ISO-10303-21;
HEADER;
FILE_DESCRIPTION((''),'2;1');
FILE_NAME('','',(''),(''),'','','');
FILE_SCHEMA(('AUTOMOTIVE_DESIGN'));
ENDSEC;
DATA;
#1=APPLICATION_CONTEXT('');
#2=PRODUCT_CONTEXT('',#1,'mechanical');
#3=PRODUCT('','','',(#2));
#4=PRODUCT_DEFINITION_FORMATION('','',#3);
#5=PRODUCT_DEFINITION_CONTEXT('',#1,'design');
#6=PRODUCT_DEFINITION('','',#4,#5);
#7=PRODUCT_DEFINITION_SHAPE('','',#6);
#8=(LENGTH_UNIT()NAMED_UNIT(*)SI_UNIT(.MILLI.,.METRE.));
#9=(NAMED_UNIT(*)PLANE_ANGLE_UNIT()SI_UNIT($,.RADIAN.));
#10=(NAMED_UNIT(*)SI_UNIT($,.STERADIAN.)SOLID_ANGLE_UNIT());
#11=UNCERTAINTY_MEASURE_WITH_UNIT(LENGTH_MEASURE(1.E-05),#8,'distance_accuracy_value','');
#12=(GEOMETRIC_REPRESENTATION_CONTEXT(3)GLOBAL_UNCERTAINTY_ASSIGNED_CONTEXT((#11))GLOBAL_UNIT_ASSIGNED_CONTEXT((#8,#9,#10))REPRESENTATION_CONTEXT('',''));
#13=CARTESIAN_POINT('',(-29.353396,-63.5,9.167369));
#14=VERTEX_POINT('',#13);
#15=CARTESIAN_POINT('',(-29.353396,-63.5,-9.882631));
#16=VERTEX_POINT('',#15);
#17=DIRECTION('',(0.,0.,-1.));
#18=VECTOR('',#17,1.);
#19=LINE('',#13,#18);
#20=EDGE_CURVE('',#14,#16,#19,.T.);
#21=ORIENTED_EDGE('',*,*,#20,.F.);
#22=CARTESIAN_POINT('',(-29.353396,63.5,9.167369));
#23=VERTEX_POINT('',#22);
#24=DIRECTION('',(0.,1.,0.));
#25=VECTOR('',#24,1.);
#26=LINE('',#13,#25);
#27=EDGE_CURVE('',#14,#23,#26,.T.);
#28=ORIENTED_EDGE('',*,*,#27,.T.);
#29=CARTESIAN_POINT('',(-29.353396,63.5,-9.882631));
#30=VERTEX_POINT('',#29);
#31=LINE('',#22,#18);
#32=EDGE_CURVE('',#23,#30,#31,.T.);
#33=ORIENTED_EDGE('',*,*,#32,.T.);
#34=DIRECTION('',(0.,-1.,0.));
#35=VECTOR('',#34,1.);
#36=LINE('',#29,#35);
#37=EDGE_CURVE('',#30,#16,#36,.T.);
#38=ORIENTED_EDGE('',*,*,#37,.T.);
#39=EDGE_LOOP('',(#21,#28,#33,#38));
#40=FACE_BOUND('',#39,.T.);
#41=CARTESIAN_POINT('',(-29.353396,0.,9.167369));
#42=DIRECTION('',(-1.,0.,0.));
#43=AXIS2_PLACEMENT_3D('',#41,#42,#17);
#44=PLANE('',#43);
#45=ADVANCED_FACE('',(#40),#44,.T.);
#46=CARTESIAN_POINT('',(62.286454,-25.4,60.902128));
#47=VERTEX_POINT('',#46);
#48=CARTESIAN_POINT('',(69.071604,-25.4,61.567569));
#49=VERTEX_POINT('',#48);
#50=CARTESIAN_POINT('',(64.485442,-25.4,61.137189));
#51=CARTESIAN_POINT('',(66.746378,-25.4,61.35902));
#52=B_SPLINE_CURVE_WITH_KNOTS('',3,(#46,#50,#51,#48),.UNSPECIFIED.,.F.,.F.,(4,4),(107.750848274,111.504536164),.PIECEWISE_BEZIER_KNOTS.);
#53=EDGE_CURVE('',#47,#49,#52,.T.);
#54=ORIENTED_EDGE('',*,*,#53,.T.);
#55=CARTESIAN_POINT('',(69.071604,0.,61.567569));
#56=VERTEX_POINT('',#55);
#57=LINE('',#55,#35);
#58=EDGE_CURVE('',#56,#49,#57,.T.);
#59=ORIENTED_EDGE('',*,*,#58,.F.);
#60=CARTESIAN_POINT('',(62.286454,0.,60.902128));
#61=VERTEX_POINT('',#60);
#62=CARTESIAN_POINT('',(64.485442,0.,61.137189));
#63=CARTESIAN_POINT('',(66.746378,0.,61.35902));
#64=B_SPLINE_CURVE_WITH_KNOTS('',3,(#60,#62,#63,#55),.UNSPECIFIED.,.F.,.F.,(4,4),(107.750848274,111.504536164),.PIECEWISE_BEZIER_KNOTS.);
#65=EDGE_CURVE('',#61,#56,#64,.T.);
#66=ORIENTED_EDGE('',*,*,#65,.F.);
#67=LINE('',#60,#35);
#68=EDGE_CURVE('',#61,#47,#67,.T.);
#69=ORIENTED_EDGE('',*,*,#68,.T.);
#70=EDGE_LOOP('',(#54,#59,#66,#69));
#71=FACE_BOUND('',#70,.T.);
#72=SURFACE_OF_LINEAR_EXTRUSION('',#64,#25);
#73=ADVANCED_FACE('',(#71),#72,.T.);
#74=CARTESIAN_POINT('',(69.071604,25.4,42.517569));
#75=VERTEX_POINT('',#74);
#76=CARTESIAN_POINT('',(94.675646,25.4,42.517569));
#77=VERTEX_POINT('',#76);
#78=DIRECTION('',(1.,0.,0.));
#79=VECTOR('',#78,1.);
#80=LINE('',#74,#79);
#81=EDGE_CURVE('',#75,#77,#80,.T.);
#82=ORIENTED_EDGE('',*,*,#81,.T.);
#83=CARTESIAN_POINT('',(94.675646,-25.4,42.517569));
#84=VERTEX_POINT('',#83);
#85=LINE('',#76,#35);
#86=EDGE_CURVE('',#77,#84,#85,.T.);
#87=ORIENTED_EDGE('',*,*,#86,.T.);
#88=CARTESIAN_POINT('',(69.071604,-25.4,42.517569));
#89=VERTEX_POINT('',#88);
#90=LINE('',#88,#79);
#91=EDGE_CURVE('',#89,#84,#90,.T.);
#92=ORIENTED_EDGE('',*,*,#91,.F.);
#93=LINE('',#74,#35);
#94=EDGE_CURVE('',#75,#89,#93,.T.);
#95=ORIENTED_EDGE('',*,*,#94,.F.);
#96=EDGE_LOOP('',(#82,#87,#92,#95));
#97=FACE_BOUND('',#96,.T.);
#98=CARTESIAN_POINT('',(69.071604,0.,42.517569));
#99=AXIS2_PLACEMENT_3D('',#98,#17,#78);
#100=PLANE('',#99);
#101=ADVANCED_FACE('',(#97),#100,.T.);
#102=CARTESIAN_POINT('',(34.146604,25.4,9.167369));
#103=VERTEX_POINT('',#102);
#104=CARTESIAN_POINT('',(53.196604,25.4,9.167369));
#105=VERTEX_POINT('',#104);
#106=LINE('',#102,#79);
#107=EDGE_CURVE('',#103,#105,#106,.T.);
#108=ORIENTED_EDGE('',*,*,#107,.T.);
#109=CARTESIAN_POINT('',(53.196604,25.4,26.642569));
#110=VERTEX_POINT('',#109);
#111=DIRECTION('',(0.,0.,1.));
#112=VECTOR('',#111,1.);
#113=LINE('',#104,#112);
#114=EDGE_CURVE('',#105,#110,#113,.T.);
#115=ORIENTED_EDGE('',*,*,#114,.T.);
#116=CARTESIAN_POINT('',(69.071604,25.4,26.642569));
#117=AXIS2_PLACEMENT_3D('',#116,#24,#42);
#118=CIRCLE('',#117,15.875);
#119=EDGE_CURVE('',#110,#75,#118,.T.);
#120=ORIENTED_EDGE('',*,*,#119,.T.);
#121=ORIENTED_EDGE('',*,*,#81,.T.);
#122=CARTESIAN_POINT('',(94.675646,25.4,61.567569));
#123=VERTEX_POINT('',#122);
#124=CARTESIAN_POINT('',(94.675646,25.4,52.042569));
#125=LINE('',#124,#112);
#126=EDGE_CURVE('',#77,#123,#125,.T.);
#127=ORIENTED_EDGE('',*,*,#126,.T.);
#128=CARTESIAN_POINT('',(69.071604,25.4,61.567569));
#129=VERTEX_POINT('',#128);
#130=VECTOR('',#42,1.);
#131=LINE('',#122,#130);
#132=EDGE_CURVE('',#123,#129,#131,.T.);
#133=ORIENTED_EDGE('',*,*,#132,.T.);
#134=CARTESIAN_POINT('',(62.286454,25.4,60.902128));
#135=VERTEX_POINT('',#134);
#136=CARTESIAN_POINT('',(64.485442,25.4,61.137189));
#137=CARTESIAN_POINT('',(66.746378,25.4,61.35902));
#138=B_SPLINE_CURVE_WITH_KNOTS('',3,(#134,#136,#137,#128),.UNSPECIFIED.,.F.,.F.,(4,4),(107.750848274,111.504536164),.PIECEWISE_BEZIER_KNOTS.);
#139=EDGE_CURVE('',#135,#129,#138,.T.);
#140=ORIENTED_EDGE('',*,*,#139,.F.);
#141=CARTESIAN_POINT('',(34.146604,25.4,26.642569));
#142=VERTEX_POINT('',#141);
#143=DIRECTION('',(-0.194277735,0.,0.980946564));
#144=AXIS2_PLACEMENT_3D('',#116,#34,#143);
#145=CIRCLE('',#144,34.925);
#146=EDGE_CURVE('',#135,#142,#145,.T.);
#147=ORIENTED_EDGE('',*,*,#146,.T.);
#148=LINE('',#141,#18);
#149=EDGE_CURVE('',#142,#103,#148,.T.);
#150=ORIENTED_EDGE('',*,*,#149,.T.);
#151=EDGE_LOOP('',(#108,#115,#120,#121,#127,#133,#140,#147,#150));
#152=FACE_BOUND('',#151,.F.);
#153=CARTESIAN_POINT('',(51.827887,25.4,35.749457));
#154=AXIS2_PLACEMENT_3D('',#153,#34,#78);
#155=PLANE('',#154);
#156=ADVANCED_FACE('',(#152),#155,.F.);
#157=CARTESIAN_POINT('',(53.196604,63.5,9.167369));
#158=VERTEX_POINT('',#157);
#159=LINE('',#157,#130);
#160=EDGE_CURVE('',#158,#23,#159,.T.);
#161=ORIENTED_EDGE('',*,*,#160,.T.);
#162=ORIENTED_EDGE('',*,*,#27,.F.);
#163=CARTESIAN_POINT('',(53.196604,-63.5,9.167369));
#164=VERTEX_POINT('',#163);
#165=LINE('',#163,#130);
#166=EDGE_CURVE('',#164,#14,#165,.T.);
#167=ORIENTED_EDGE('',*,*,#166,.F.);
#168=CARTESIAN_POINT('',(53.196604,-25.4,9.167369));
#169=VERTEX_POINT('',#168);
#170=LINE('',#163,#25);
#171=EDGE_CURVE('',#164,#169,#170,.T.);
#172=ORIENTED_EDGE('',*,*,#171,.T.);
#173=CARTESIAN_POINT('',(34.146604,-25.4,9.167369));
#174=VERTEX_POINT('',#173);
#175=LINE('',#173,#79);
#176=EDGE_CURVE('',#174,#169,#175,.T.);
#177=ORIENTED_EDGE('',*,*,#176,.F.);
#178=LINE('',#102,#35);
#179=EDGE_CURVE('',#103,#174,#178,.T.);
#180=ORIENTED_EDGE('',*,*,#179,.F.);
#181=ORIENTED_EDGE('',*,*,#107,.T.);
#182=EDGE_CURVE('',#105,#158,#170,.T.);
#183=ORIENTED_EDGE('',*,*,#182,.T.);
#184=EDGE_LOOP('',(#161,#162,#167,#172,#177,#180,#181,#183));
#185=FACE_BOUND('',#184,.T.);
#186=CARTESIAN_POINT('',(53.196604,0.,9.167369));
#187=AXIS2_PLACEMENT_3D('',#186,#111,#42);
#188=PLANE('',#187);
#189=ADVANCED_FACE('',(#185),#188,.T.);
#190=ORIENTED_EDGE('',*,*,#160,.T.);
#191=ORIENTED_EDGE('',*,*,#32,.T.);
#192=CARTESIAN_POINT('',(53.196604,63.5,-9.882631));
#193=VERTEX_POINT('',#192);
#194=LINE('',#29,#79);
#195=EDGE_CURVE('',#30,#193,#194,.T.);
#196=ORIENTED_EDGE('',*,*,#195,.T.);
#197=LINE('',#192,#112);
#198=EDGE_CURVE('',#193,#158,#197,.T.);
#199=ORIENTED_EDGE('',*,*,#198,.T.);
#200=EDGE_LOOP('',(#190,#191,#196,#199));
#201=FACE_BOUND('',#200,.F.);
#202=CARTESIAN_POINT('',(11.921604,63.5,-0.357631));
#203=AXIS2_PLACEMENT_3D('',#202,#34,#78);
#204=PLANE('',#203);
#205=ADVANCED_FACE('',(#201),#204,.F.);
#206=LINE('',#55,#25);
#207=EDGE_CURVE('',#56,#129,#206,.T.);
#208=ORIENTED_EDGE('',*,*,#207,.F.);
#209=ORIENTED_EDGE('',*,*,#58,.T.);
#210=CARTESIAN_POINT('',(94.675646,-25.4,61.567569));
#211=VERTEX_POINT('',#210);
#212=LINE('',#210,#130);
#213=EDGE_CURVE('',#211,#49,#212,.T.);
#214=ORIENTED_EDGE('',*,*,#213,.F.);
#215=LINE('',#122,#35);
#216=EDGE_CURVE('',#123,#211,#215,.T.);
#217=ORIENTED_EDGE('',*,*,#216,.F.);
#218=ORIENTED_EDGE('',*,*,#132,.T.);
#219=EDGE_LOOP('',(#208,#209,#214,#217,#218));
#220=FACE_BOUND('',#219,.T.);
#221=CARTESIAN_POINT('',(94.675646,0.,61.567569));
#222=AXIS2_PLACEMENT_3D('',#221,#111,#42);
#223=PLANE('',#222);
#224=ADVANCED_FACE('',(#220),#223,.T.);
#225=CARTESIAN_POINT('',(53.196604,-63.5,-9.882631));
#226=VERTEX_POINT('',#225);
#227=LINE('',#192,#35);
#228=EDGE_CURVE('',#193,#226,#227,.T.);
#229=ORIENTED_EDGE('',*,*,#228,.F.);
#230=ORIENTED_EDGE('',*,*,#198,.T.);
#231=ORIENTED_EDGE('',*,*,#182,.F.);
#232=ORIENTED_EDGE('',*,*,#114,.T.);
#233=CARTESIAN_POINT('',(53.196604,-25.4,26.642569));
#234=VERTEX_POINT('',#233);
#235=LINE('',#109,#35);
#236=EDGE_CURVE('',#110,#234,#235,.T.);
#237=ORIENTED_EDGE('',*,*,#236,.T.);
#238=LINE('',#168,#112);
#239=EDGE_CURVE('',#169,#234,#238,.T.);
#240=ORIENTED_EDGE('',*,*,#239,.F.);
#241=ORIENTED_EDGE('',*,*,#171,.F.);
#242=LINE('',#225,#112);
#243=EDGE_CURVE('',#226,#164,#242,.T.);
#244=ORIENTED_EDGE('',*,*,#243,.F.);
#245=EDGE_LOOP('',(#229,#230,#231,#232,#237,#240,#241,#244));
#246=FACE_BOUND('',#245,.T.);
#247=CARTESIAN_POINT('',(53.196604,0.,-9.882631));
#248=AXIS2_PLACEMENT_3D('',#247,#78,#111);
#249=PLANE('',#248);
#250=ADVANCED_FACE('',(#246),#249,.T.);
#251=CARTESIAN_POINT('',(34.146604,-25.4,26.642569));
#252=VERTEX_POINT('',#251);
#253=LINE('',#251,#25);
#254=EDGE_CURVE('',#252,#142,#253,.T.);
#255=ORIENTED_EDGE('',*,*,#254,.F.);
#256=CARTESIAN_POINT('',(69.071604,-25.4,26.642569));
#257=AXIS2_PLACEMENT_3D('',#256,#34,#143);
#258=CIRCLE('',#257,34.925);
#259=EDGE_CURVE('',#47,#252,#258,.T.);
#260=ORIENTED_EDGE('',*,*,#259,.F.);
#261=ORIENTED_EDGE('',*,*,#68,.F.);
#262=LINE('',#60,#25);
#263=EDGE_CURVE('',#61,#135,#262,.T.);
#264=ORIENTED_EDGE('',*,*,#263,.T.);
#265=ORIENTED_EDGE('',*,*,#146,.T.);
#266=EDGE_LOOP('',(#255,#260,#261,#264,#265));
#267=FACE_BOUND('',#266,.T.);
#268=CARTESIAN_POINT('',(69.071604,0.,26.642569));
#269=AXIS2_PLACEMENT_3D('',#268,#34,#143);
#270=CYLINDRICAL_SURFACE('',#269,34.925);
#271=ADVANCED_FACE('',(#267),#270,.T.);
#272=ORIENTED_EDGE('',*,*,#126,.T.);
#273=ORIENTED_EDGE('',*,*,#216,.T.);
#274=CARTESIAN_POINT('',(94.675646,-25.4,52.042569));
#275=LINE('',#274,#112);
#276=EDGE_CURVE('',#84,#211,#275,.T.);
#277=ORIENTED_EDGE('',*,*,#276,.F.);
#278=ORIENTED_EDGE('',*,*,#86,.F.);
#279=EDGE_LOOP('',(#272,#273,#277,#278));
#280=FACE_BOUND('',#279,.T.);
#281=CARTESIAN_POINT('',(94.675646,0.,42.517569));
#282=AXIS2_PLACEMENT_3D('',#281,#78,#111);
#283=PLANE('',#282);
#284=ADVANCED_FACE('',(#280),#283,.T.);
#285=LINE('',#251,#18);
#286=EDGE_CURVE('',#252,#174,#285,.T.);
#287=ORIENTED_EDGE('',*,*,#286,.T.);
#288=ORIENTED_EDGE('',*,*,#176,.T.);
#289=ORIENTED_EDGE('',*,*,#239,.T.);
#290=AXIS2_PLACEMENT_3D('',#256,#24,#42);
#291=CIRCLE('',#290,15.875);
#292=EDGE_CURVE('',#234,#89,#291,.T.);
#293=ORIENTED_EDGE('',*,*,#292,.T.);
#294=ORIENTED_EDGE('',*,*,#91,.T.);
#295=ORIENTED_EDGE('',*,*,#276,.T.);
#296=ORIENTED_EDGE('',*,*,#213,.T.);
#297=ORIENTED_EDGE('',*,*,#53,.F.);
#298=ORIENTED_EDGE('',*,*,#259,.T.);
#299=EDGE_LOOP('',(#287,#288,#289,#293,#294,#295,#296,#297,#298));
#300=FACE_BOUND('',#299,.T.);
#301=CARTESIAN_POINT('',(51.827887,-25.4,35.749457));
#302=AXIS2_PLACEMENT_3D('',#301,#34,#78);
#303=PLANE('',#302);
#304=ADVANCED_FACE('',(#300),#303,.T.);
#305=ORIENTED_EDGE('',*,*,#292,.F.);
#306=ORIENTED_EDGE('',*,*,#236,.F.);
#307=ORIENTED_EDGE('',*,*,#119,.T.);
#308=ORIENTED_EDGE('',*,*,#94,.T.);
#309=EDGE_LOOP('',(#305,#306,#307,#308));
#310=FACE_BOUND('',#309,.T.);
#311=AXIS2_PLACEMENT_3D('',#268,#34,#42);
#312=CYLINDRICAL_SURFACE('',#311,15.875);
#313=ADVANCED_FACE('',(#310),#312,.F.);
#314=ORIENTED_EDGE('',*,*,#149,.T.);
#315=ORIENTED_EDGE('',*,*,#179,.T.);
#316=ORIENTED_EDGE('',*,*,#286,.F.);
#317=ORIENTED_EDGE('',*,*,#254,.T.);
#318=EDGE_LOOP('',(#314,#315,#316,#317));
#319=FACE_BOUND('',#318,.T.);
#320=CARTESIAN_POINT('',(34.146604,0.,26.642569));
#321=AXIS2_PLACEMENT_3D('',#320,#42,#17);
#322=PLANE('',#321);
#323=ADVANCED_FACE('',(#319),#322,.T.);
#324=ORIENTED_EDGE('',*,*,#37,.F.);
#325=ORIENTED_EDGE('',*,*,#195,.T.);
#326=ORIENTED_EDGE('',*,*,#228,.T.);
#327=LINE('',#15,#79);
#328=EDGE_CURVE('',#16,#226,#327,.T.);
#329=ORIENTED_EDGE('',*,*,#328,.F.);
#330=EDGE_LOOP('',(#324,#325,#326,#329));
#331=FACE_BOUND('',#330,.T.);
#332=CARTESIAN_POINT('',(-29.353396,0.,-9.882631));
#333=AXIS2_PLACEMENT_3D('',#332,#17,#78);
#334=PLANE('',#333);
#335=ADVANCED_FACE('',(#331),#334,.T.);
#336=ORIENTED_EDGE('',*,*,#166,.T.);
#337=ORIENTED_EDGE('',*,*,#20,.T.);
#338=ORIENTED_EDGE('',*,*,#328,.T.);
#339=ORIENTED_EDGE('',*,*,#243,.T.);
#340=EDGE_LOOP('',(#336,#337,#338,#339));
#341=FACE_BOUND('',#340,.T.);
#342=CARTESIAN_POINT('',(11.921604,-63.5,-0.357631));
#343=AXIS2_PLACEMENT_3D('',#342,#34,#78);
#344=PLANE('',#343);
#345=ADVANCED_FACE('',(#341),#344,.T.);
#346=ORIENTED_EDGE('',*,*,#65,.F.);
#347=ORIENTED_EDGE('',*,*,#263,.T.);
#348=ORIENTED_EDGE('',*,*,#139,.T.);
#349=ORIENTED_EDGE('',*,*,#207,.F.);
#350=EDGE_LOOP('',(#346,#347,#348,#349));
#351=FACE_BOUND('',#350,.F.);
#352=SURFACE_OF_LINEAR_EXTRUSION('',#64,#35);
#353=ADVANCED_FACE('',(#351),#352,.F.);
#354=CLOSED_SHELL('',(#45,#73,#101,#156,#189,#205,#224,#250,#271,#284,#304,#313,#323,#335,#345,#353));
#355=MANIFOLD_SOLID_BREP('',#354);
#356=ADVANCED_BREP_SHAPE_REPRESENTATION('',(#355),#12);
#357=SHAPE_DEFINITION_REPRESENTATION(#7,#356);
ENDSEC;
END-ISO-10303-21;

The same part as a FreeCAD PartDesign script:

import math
import FreeCAD as App
import Part
import Sketcher
from FreeCAD import Vector
Q = App.Units.Quantity

doc = App.newDocument("Part")
body = doc.addObject("PartDesign::Body", "Body")

# Sketch on XZ plane
sketch1 = doc.addObject("Sketcher::SketchObject", "Sketch")
body.addObject(sketch1)
sketch1.AttachmentSupport = (doc.XZ_Plane, [""])
sketch1.MapMode = "FlatFace"
sketch1.addGeometry([
    Part.LineSegment(Vector(-29, 9, 0), Vector(-29, -10, 0)),
    Part.LineSegment(Vector(-29, -10, 0), Vector(53, -10, 0)),
    Part.LineSegment(Vector(53, -10, 0), Vector(53, 9, 0)),
    Part.LineSegment(Vector(53, 9, 0), Vector(-29, 9, 0)),
], False)
sketch1.addConstraint([
    Sketcher.Constraint("Coincident", 0, 2, 1, 1),
    Sketcher.Constraint("Coincident", 1, 2, 2, 1),
    Sketcher.Constraint("Coincident", 2, 2, 3, 1),
    Sketcher.Constraint("Coincident", 3, 2, 0, 1),
    Sketcher.Constraint("Vertical", 0),
    Sketcher.Constraint("Horizontal", 1),
    Sketcher.Constraint("Vertical", 2),
    Sketcher.Constraint("Horizontal", 3),
    Sketcher.Constraint("DistanceX", 1, 1, 1, 2, Q("3.25 in")),
    Sketcher.Constraint("DistanceY", 0, 2, 0, 1, Q("0.75 in")),
    Sketcher.Constraint("DistanceY", 0, 2, -1, 1, 9.882631),
    Sketcher.Constraint("DistanceX", 0, 2, -1, 1, 29.353396),
])
pad1 = doc.addObject("PartDesign::Pad", "Pad")
body.addObject(pad1)
pad1.Profile = sketch1
pad1.Length = Q("5 in")
pad1.Midplane = True

# Sketch on XZ plane
sketch2 = doc.addObject("Sketcher::SketchObject", "Sketch001")
body.addObject(sketch2)
sketch2.AttachmentSupport = (doc.XZ_Plane, [""])
sketch2.MapMode = "FlatFace"
sketch2.addGeometry([
    Part.LineSegment(Vector(34.146604, 26.642569, 0), Vector(34.146604, 9.167369, 0)),  # 0
    Part.LineSegment(Vector(34.146604, 9.167369, 0), Vector(53.196604, 9.167369, 0)),  # 1
    Part.LineSegment(Vector(53.196604, 9.167369, 0), Vector(53.196604, 26.642569, 0)),  # 2
    Part.ArcOfCircle(Part.Circle(Vector(69.071604, 26.642569, 0), Vector(0, 0, 1), 15.875), math.radians(90), math.radians(180)),  # 3
    Part.LineSegment(Vector(69.071604, 42.517569, 0), Vector(94.675646, 42.517569, 0)),  # 4
    Part.LineSegment(Vector(94.675646, 42.517569, 0), Vector(94.675646, 61.567569, 0)),  # 5
    Part.LineSegment(Vector(94.675646, 61.567569, 0), Vector(69.071604, 61.567569, 0)),  # 6
    Part.BSplineCurve([Vector(62.286454, 60.902128, 0), Vector(64.485442, 61.137189, 0), Vector(66.746378, 61.35902, 0), Vector(69.071604, 61.567569, 0)], [4, 4], [107.750848274, 111.504536164], False, 3, [1, 1, 1, 1], False),  # 7
    Part.ArcOfCircle(Part.Circle(Vector(69.071604, 26.642569, 0), Vector(0, 0, 1), 34.925), math.radians(101.202534), math.radians(180)),  # 8
], False)
sketch2.addConstraint([
    Sketcher.Constraint("Block", 7),
    Sketcher.Constraint("Coincident", 0, 2, 1, 1),
    Sketcher.Constraint("Coincident", 1, 2, 2, 1),
    Sketcher.Constraint("Coincident", 2, 2, 3, 2),
    Sketcher.Constraint("Coincident", 3, 1, 4, 1),
    Sketcher.Constraint("Coincident", 4, 2, 5, 1),
    Sketcher.Constraint("Coincident", 5, 2, 6, 1),
    Sketcher.Constraint("Coincident", 6, 2, 7, 2),
    Sketcher.Constraint("Coincident", 7, 1, 8, 1),
    Sketcher.Constraint("Coincident", 8, 2, 0, 1),
    Sketcher.Constraint("Vertical", 0),
    Sketcher.Constraint("Horizontal", 1),
    Sketcher.Constraint("Vertical", 2),
    Sketcher.Constraint("Horizontal", 4),
    Sketcher.Constraint("Vertical", 5),
    Sketcher.Constraint("Horizontal", 6),
    Sketcher.Constraint("Coincident", 8, 3, 3, 3),
    Sketcher.Constraint("Radius", 3, Q("0.625 in")),
    Sketcher.Constraint("Radius", 8, Q("1.375 in")),
    Sketcher.Constraint("DistanceY", 5, 1, 5, 2, Q("0.75 in")),
    Sketcher.Constraint("DistanceY", 0, 2, 0, 1, Q("0.688 in")),
    Sketcher.Constraint("DistanceY", 2, 1, 2, 2, Q("0.688 in")),
    Sketcher.Constraint("DistanceY", 0, 2, 3, 3, Q("0.688 in")),
    Sketcher.Constraint("DistanceX", 2, 2, 3, 1, Q("0.625 in")),
    Sketcher.Constraint("DistanceX", 4, 1, 4, 2, 25.604042),
])
pad2 = doc.addObject("PartDesign::Pad", "Pad001")
body.addObject(pad2)
pad2.Profile = sketch2
pad2.Length = Q("2 in")
pad2.Midplane = True

doc.recompute()
